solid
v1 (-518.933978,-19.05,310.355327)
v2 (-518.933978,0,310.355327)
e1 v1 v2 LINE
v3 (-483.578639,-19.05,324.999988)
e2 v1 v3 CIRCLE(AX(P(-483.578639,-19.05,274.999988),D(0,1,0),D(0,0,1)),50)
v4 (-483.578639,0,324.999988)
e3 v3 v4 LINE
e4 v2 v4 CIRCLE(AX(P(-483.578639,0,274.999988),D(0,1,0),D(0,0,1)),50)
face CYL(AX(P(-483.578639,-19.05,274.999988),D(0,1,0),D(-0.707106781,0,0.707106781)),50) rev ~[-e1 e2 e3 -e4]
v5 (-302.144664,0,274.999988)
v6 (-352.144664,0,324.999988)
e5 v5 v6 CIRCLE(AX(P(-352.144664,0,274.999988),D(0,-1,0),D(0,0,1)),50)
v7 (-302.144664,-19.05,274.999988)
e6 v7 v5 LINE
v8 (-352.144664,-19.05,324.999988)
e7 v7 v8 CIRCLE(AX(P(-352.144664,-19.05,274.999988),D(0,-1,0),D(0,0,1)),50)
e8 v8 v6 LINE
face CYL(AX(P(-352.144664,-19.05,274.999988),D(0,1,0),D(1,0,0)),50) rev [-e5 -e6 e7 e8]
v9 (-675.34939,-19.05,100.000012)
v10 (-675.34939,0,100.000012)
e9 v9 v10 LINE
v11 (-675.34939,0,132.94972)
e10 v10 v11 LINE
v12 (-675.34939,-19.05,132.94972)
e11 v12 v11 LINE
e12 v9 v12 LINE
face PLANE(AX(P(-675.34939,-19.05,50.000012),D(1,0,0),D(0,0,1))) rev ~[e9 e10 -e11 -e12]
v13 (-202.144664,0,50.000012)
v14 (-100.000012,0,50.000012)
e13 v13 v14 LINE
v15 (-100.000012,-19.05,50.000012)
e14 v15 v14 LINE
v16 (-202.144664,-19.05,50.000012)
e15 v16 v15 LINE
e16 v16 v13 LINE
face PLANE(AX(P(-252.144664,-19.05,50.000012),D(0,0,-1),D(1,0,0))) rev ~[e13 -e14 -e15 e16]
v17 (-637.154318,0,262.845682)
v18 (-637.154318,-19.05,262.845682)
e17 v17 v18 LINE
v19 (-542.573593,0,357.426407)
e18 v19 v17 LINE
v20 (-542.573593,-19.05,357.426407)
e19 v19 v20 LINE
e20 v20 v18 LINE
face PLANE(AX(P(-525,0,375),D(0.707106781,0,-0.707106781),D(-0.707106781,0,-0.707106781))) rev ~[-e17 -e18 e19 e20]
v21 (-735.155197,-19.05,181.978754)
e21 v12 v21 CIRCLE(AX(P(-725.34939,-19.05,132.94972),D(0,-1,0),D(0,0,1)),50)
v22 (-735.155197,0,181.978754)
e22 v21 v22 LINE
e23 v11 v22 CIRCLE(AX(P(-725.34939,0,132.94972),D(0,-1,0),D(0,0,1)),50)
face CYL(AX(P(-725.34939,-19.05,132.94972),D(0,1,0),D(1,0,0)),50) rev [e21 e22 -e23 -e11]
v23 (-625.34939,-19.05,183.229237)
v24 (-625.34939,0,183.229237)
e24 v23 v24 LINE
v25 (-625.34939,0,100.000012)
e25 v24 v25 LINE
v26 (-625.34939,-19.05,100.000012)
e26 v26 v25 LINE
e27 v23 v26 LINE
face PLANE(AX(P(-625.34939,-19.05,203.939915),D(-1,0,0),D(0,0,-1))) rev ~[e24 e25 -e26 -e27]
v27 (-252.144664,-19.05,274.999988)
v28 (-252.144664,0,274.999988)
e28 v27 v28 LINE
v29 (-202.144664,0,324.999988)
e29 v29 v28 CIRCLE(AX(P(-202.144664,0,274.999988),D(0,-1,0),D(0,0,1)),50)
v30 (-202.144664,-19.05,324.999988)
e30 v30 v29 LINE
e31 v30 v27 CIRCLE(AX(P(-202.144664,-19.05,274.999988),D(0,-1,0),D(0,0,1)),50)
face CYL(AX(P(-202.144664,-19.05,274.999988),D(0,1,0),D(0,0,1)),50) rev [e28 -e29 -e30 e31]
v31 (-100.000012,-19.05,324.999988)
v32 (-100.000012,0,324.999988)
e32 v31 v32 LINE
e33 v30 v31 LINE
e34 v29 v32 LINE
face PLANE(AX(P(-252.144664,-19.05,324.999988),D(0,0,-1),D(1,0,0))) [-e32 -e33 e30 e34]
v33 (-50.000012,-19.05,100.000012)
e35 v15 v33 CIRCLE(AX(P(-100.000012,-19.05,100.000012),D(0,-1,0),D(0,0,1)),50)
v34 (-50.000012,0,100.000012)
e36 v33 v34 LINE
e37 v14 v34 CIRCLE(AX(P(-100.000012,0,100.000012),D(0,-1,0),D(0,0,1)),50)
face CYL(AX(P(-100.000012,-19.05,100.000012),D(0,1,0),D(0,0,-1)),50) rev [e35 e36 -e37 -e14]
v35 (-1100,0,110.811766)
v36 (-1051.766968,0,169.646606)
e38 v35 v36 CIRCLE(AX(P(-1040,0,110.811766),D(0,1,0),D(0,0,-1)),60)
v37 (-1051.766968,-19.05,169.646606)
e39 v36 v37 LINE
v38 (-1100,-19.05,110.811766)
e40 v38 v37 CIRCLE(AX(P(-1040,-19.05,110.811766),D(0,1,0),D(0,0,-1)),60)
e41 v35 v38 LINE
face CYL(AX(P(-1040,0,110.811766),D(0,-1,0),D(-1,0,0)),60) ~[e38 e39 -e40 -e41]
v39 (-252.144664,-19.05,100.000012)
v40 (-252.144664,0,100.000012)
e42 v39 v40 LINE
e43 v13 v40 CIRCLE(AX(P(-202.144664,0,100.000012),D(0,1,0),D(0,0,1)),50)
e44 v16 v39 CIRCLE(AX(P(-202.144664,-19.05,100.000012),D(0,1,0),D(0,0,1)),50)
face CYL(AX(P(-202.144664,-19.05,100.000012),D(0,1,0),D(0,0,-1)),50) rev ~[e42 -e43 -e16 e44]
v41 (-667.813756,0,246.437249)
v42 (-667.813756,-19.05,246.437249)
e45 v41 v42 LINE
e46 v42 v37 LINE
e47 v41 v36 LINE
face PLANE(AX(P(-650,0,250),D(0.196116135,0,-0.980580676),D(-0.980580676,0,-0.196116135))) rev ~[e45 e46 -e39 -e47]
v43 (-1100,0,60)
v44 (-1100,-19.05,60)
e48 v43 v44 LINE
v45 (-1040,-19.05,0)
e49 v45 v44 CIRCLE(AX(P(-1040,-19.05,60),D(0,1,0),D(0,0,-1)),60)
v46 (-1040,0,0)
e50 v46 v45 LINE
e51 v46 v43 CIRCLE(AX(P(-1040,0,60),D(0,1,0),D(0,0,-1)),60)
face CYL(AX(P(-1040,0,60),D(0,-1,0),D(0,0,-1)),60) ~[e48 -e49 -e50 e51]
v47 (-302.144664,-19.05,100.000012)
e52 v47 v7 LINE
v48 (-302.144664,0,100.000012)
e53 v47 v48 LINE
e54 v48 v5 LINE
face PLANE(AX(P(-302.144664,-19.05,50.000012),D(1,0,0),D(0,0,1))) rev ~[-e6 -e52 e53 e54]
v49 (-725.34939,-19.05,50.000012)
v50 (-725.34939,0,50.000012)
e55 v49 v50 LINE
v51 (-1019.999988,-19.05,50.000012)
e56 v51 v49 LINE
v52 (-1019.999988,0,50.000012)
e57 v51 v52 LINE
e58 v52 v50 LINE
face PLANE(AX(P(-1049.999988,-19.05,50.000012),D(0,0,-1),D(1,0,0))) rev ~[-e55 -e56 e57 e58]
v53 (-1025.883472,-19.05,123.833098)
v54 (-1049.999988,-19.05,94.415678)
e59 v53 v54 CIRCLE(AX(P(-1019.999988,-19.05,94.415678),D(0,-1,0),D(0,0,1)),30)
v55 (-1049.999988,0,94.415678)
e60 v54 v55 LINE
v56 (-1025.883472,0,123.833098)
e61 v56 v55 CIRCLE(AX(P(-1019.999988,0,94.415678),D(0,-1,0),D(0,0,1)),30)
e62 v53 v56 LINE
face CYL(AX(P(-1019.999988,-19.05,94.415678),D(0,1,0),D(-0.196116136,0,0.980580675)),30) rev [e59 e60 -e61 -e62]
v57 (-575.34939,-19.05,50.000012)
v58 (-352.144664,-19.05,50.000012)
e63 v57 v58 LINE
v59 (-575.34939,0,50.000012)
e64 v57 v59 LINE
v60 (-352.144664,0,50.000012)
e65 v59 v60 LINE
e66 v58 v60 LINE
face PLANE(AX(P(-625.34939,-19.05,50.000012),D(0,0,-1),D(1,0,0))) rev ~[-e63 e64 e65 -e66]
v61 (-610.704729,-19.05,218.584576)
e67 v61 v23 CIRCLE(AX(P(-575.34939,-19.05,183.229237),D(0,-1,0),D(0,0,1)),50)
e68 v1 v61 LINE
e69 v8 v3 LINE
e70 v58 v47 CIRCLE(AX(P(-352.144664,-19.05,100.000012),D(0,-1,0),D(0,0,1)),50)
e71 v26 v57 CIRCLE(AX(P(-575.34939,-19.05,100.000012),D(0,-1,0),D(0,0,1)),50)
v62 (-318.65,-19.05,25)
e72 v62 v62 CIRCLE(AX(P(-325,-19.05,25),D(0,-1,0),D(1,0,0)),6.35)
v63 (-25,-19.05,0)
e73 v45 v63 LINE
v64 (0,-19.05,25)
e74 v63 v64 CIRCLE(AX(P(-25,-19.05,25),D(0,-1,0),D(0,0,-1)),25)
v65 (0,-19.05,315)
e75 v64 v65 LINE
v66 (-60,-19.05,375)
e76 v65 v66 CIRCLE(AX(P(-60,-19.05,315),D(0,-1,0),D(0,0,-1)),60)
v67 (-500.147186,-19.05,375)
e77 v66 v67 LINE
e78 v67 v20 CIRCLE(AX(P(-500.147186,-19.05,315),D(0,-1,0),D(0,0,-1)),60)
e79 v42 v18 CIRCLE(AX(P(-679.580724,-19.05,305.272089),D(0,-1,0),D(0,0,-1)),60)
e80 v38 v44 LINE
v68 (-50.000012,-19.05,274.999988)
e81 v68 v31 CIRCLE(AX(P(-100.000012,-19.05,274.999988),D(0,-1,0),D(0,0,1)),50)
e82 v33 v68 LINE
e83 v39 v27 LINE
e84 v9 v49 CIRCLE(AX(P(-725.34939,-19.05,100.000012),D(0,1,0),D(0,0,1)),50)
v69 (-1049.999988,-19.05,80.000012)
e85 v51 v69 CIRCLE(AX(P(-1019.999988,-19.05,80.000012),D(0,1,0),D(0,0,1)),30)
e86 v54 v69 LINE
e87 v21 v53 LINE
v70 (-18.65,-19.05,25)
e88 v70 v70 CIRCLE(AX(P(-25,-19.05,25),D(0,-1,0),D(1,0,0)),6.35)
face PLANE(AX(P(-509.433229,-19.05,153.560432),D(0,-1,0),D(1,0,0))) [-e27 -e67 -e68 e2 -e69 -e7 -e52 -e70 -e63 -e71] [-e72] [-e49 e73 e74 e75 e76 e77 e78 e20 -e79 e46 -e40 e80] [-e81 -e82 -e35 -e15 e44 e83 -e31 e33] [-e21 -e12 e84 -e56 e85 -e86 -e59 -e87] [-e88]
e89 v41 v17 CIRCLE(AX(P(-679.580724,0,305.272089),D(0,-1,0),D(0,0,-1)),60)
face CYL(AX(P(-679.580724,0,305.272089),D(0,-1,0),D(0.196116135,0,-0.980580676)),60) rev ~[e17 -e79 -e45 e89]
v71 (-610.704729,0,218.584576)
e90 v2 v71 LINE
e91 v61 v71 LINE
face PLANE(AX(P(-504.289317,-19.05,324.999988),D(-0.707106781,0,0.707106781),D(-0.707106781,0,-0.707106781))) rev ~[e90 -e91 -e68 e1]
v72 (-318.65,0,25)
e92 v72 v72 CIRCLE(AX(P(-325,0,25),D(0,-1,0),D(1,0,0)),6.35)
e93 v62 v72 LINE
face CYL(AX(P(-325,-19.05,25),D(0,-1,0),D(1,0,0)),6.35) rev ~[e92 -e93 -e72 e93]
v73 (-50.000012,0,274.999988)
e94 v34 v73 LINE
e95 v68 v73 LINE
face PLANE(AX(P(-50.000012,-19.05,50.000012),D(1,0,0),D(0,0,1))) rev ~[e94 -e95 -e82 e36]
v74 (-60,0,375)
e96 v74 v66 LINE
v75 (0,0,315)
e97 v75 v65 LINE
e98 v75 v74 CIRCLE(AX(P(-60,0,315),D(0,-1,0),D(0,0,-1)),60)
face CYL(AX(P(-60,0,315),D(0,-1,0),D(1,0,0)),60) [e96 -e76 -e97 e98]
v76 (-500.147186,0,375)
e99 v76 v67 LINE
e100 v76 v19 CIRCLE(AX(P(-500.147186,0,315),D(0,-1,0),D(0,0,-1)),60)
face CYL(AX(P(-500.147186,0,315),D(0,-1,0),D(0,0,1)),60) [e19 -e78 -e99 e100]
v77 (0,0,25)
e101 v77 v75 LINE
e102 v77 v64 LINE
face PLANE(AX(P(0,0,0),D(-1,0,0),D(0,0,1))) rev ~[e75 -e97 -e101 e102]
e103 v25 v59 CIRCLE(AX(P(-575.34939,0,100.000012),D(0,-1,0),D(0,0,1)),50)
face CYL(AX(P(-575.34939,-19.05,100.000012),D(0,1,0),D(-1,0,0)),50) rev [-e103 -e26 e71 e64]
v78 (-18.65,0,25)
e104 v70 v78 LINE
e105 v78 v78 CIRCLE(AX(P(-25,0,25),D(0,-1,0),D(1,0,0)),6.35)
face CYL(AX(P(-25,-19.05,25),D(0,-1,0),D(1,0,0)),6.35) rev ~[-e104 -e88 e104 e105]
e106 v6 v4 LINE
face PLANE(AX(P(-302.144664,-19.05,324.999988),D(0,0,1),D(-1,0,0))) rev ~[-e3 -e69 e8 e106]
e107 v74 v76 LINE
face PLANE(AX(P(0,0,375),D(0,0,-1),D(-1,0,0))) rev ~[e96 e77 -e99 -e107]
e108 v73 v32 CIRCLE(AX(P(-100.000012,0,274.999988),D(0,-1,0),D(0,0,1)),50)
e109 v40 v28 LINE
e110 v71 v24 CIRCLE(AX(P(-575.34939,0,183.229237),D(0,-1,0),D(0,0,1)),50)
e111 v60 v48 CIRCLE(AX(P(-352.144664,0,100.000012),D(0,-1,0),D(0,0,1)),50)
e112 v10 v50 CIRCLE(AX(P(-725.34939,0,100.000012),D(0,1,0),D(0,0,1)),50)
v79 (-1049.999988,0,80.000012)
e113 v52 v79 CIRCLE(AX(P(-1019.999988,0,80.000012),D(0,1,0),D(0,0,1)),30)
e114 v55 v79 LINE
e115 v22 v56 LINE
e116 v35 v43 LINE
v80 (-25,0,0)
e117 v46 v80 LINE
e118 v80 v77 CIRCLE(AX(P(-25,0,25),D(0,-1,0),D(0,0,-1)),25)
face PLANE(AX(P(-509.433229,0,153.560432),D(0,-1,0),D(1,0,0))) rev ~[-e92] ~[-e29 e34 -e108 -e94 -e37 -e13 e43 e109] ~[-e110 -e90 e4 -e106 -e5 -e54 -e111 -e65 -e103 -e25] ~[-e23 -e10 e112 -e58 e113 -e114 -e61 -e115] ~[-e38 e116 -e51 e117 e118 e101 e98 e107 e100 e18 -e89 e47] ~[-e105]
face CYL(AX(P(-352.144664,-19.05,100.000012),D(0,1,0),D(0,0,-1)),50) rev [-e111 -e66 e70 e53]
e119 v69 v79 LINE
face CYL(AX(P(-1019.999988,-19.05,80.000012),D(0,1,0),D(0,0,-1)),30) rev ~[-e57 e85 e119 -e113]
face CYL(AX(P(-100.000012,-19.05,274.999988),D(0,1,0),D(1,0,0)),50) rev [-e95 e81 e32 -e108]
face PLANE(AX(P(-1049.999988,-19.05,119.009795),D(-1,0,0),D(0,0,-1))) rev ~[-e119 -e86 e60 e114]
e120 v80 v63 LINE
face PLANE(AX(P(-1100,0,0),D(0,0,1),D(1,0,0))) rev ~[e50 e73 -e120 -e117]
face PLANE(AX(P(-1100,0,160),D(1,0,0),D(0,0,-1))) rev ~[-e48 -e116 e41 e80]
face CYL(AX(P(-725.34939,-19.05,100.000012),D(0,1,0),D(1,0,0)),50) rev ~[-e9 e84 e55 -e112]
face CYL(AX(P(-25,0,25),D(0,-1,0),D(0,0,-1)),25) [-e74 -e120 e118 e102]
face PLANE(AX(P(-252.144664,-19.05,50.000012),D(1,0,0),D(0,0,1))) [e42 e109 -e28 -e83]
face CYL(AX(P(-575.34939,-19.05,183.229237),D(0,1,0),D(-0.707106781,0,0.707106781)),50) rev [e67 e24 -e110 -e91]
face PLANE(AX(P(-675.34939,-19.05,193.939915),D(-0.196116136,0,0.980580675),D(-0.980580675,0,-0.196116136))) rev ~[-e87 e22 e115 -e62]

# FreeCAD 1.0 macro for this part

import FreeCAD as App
import Part
import Sketcher
from FreeCAD import Vector
Q = App.Units.Quantity


def edges_at(feature, points):
    """Names of the edges that pass closest to the given points."""
    edges = feature.Shape.Edges
    near = lambda p: min(range(len(edges)), key=lambda i: edges[i].distToShape(Part.Vertex(*p))[0])
    return sorted({f"Edge{near(p) + 1}" for p in points})

doc = App.newDocument("Part")
body = doc.addObject("PartDesign::Body", "Body")

sketch1 = body.newObject("Sketcher::SketchObject", "Sketch")
sketch1.AttachmentSupport = (doc.getObject("XZ_Plane"), [""])
sketch1.MapMode = "FlatFace"
sketch1.addGeometry([
    Part.LineSegment(Vector(-1100, 0, 0), Vector(0, 0, 0)),
    Part.LineSegment(Vector(0, 0, 0), Vector(0, 375, 0)),
    Part.LineSegment(Vector(0, 375, 0), Vector(-525, 375, 0)),
    Part.LineSegment(Vector(-525, 375, 0), Vector(-650, 250, 0)),
    Part.LineSegment(Vector(-650, 250, 0), Vector(-1100, 160, 0)),
    Part.LineSegment(Vector(-1100, 160, 0), Vector(-1100, 0, 0)),
], False)
sketch1.addConstraint([
    Sketcher.Constraint("Coincident", 0, 2, 1, 1),
    Sketcher.Constraint("Coincident", 1, 2, 2, 1),
    Sketcher.Constraint("Coincident", 2, 2, 3, 1),
    Sketcher.Constraint("Coincident", 3, 2, 4, 1),
    Sketcher.Constraint("Coincident", 4, 2, 5, 1),
    Sketcher.Constraint("Coincident", 5, 2, 0, 1),
    Sketcher.Constraint("Horizontal", 0),
    Sketcher.Constraint("Vertical", 1),
    Sketcher.Constraint("Horizontal", 2),
    Sketcher.Constraint("Vertical", 5),
    Sketcher.Constraint("Coincident", 0, 2, -1, 1),
    Sketcher.Constraint("DistanceX", 0, 1, 0, 2, 1100.0),
    Sketcher.Constraint("DistanceX", 2, 2, 2, 1, 525.0),
    Sketcher.Constraint("DistanceY", 1, 1, 1, 2, 375.0),
    Sketcher.Constraint("DistanceY", 5, 2, 5, 1, 160.0),
    Sketcher.Constraint("Angle", 3, Q("-135 deg")),
    Sketcher.Constraint("DistanceX", 3, 2, -1, 1, 650.0),
])
pad1 = body.newObject("PartDesign::Pad", "Pad")
pad1.Profile = sketch1
pad1.Length = 19.05

sketch2 = body.newObject("Sketcher::SketchObject", "Sketch001")
sketch2.AttachmentSupport = (doc.getObject("XZ_Plane"), [""])
sketch2.MapMode = "FlatFace"
sketch2.AttachmentOffset = App.Placement(Vector(0, 0, 19.05), App.Rotation())
sketch2.addGeometry(Part.Circle(Vector(-325, 25, 0), Vector(0, 0, 1), 6), False)
sketch2.addConstraint([
    Sketcher.Constraint("Diameter", 0, 12.7),
    Sketcher.Constraint("DistanceX", 0, 3, -1, 1, 325.0),
    Sketcher.Constraint("DistanceY", -1, 1, 0, 3, 25.0),
])
pocket1 = body.newObject("PartDesign::Pocket", "Pocket")
pocket1.Profile = sketch2
pocket1.Length = 25

sketch3 = body.newObject("Sketcher::SketchObject", "Sketch002")
sketch3.AttachmentSupport = (doc.getObject("XZ_Plane"), [""])
sketch3.MapMode = "FlatFace"
sketch3.AttachmentOffset = App.Placement(Vector(0, 0, 19.05), App.Rotation())
sketch3.addGeometry(Part.Circle(Vector(-25, 25, 0), Vector(0, 0, 1), 6), False)
sketch3.addConstraint([
    Sketcher.Constraint("Diameter", 0, 12.7),
    Sketcher.Constraint("DistanceX", 0, 3, -1, 1, 25.0),
    Sketcher.Constraint("DistanceY", -1, 1, 0, 3, 25.0),
])
pocket2 = body.newObject("PartDesign::Pocket", "Pocket001")
pocket2.Profile = sketch3
pocket2.Length = 25

sketch4 = body.newObject("Sketcher::SketchObject", "Sketch003")
sketch4.AttachmentSupport = (doc.getObject("XZ_Plane"), [""])
sketch4.MapMode = "FlatFace"
sketch4.AttachmentOffset = App.Placement(Vector(0, 0, 19.05), App.Rotation())
sketch4.addGeometry(Part.Circle(Vector(-25, 25, 0), Vector(0, 0, 1), 6), False)
sketch4.addConstraint([
    Sketcher.Constraint("Diameter", 0, 12.7),
    Sketcher.Constraint("DistanceX", 0, 3, -1, 1, 25.0),
    Sketcher.Constraint("DistanceY", -1, 1, 0, 3, 25.0),
])
pocket3 = body.newObject("PartDesign::Pocket", "Pocket002")
pocket3.Profile = sketch4
pocket3.Length = 25
pocket3.Reversed = True

sketch5 = body.newObject("Sketcher::SketchObject", "Sketch004")
sketch5.AttachmentSupport = (doc.getObject("XZ_Plane"), [""])
sketch5.MapMode = "FlatFace"
sketch5.AttachmentOffset = App.Placement(Vector(0, 0, 19.05), App.Rotation())
sketch5.addGeometry([
    Part.LineSegment(Vector(-675, 50, 0), Vector(-675, 194, 0)),
    Part.LineSegment(Vector(-675, 194, 0), Vector(-1050, 119, 0)),
    Part.LineSegment(Vector(-1050, 119, 0), Vector(-1050, 50, 0)),
    Part.LineSegment(Vector(-1050, 50, 0), Vector(-675, 50, 0)),
    Part.LineSegment(Vector(-504, 325, 0), Vector(-625, 204, 0)),
    Part.LineSegment(Vector(-625, 204, 0), Vector(-625, 50, 0)),
    Part.LineSegment(Vector(-625, 50, 0), Vector(-302, 50, 0)),
    Part.LineSegment(Vector(-302, 50, 0), Vector(-302, 325, 0)),
    Part.LineSegment(Vector(-302, 325, 0), Vector(-504, 325, 0)),
    Part.LineSegment(Vector(-252, 325, 0), Vector(-252, 50, 0)),
    Part.LineSegment(Vector(-252, 50, 0), Vector(-50, 50, 0)),
    Part.LineSegment(Vector(-50, 50, 0), Vector(-50, 325, 0)),
    Part.LineSegment(Vector(-50, 325, 0), Vector(-252, 325, 0)),
], False)
sketch5.addConstraint([
    Sketcher.Constraint("Coincident", 0, 2, 1, 1),
    Sketcher.Constraint("Coincident", 1, 2, 2, 1),
    Sketcher.Constraint("Coincident", 2, 2, 3, 1),
    Sketcher.Constraint("Coincident", 3, 2, 0, 1),
    Sketcher.Constraint("Coincident", 4, 2, 5, 1),
    Sketcher.Constraint("Coincident", 5, 2, 6, 1),
    Sketcher.Constraint("Coincident", 6, 2, 7, 1),
    Sketcher.Constraint("Coincident", 7, 2, 8, 1),
    Sketcher.Constraint("Coincident", 8, 2, 4, 1),
    Sketcher.Constraint("Coincident", 9, 2, 10, 1),
    Sketcher.Constraint("Coincident", 10, 2, 11, 1),
    Sketcher.Constraint("Coincident", 11, 2, 12, 1),
    Sketcher.Constraint("Coincident", 12, 2, 9, 1),
    Sketcher.Constraint("Vertical", 0),
    Sketcher.Constraint("Vertical", 2),
    Sketcher.Constraint("Horizontal", 3),
    Sketcher.Constraint("Vertical", 5),
    Sketcher.Constraint("Horizontal", 6),
    Sketcher.Constraint("Vertical", 7),
    Sketcher.Constraint("Horizontal", 8),
    Sketcher.Constraint("Vertical", 9),
    Sketcher.Constraint("Horizontal", 10),
    Sketcher.Constraint("Vertical", 11),
    Sketcher.Constraint("Horizontal", 12),
    Sketcher.Constraint("Horizontal", 3, 2, 5, 2),
    Sketcher.Constraint("Horizontal", 6, 2, 9, 2),
    Sketcher.Constraint("Horizontal", 8, 2, 11, 2),
    Sketcher.Constraint("Equal", 8, 10),
    Sketcher.Constraint("Angle", 4, Q("-135 deg")),
    Sketcher.Constraint("DistanceX", 0, 2, 4, 2, 50.0),
    Sketcher.Constraint("DistanceY", 0, 2, 4, 2, 10.0),
    Sketcher.Constraint("DistanceX", 6, 2, 9, 2, 50.0),
    Sketcher.Constraint("DistanceX", 3, 1, 3, 2, 374.650598),
    Sketcher.Constraint("DistanceX", 10, 1, 10, 2, 202.144652),
    Sketcher.Constraint("DistanceX", 6, 1, 6, 2, 323.204726),
    Sketcher.Constraint("DistanceY", 0, 1, 0, 2, 143.939903),
    Sketcher.Constraint("DistanceY", 2, 2, 2, 1, 69.009783),
    Sketcher.Constraint("DistanceX", 0, 2, -1, 1, 675.34939),
    Sketcher.Constraint("DistanceY", -1, 1, 2, 2, 50.000012),
])
pocket4 = body.newObject("PartDesign::Pocket", "Pocket003")
pocket4.Profile = sketch5
pocket4.Length = 25
doc.recompute()

fillet = body.newObject("PartDesign::Fillet", "Fillet")
fillet.Base = (pocket4, edges_at(pocket4, [
    (-675.349, -9.525, 50),
    (-675.349, -9.525, 193.94),
    (-625.349, -9.525, 203.94),
    (-625.349, -9.525, 50),
    (-504.289, -9.525, 325),
    (-302.145, -9.525, 325),
    (-302.145, -9.525, 50),
    (-50, -9.525, 50),
    (-252.145, -9.525, 50),
    (-252.145, -9.525, 325),
    (-50, -9.525, 325),
]))
fillet.Radius = 50
doc.recompute()

fillet2 = body.newObject("PartDesign::Fillet", "Fillet001")
fillet2.Base = (fillet, edges_at(fillet, [
    (-650, -9.525, 250),
    (-525, -9.525, 375),
    (0, -9.525, 375),
    (-1100, -9.525, 160),
    (-1100, -9.525, 0),
]))
fillet2.Radius = 60
doc.recompute()

fillet3 = body.newObject("PartDesign::Fillet", "Fillet002")
fillet3.Base = (fillet2, edges_at(fillet2, [(0, -9.525, 0)]))
fillet3.Radius = 25
doc.recompute()

fillet4 = body.newObject("PartDesign::Fillet", "Fillet003")
fillet4.Base = (fillet3, edges_at(fillet3, [(-1050, -9.525, 119.01), (-1050, -9.525, 50)]))
fillet4.Radius = 30

doc.recompute()
